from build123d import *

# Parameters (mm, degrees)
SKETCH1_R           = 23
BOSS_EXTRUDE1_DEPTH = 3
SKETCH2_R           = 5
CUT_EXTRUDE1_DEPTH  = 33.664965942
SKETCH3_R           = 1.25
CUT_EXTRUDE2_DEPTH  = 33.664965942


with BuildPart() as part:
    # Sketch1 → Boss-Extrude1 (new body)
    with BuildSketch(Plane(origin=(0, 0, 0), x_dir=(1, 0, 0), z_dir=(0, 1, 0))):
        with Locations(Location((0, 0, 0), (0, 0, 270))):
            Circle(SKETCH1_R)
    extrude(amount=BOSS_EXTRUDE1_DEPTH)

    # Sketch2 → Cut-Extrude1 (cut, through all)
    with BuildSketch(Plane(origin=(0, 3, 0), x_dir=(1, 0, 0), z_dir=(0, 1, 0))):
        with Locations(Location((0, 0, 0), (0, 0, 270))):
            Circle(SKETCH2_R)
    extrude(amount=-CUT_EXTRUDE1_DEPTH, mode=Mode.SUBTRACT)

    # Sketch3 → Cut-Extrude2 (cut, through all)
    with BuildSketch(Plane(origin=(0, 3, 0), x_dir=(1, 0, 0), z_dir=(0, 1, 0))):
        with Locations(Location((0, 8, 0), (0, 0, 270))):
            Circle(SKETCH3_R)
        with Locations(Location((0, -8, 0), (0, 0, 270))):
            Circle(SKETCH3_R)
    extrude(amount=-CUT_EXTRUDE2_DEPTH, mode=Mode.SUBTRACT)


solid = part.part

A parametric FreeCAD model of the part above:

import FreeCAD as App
import Part
import Sketcher
from FreeCAD import Vector
Q = App.Units.Quantity

doc = App.newDocument("Part")
body = doc.addObject("PartDesign::Body", "Body")

# Sketch on XZ plane
sketch1 = body.newObject("Sketcher::SketchObject", "Sketch")
sketch1.AttachmentSupport = (doc.getObject("XZ_Plane"), [""])
sketch1.MapMode = "FlatFace"
sketch1.addGeometry(Part.Circle(Vector(0, 0, 0), Vector(0, 0, 1), 23), False)
sketch1.addConstraint([
    Sketcher.Constraint("Coincident", 0, 3, -1, 1),
    Sketcher.Constraint("Diameter", 0, Q("46 mm")),
])
pad1 = body.newObject("PartDesign::Pad", "Pad")
pad1.Profile = sketch1
pad1.Length = 3
pad1.Reversed = True

# Sketch on XZ plane
sketch2 = body.newObject("Sketcher::SketchObject", "Sketch001")
sketch2.AttachmentSupport = (doc.getObject("XZ_Plane"), [""])
sketch2.MapMode = "FlatFace"
sketch2.AttachmentOffset = App.Placement(Vector(0, 0, -3), App.Rotation())
sketch2.addGeometry(Part.Circle(Vector(0, 0, 0), Vector(0, 0, 1), 5), False)
sketch2.addConstraint([
    Sketcher.Constraint("Coincident", 0, 3, -1, 1),
    Sketcher.Constraint("Diameter", 0, Q("10 mm")),
])
pocket1 = body.newObject("PartDesign::Pocket", "Pocket")
pocket1.Profile = sketch2
pocket1.Type = "ThroughAll"
pocket1.Reversed = True

# Sketch on XZ plane
sketch3 = body.newObject("Sketcher::SketchObject", "Sketch002")
sketch3.AttachmentSupport = (doc.getObject("XZ_Plane"), [""])
sketch3.MapMode = "FlatFace"
sketch3.AttachmentOffset = App.Placement(Vector(0, 0, -3), App.Rotation())
sketch3.addGeometry([
    Part.Circle(Vector(0, -8, 0), Vector(0, 0, 1), 1.2),
    Part.Circle(Vector(0, 8, 0), Vector(0, 0, 1), 1.2),
], False)
sketch3.addConstraint([
    Sketcher.Constraint("Equal", 0, 1),
    Sketcher.Constraint("Symmetric", 0, 3, 1, 3, -1, 1),
    Sketcher.Constraint("PointOnObject", 0, 3, -2),
    Sketcher.Constraint("Diameter", 0, Q("2.5 mm")),
    Sketcher.Constraint("DistanceY", 0, 3, -1, 1, Q("8 mm")),
])
pocket2 = body.newObject("PartDesign::Pocket", "Pocket001")
pocket2.Profile = sketch3
pocket2.Type = "ThroughAll"
pocket2.Reversed = True

doc.recompute()
